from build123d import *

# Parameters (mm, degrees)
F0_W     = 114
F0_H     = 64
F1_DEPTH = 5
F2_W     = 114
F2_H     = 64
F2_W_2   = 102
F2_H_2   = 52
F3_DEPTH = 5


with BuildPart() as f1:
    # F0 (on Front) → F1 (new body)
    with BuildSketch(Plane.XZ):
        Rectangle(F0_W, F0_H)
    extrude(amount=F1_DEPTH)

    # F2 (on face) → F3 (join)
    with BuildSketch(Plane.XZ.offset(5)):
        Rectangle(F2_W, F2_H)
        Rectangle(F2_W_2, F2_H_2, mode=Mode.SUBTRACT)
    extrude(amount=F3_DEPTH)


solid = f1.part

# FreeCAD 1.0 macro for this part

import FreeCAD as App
import Part
import Sketcher

V = App.Vector
Q = App.Units.Quantity

doc = App.newDocument("Part")
body = doc.addObject("PartDesign::Body", "Body")

# Sketch on XZ plane
sketch1 = body.newObject("Sketcher::SketchObject", "Sketch")
sketch1.AttachmentSupport = (doc.getObject("XZ_Plane"), [""])
sketch1.MapMode = "FlatFace"
sketch1.addGeometry([
    Part.LineSegment(V(-57, 32, 0), V(-57, -32, 0)),
    Part.LineSegment(V(-57, -32, 0), V(57, -32, 0)),
    Part.LineSegment(V(57, -32, 0), V(57, 32, 0)),
    Part.LineSegment(V(57, 32, 0), V(-57, 32, 0)),
], False)
sketch1.addConstraint([
    Sketcher.Constraint("Coincident", 0, 2, 1, 1),
    Sketcher.Constraint("Coincident", 1, 2, 2, 1),
    Sketcher.Constraint("Coincident", 2, 2, 3, 1),
    Sketcher.Constraint("Coincident", 3, 2, 0, 1),
    Sketcher.Constraint("Vertical", 0),
    Sketcher.Constraint("Horizontal", 1),
    Sketcher.Constraint("Vertical", 2),
    Sketcher.Constraint("Horizontal", 3),
    Sketcher.Constraint("Symmetric", 0, 2, 2, 2, -1, 1),
    Sketcher.Constraint("DistanceX", 1, 1, 1, 2, Q("114 mm")),
    Sketcher.Constraint("DistanceY", 0, 2, 0, 1, Q("64 mm")),
])
pad1 = body.newObject("PartDesign::Pad", "Pad")
pad1.Profile = sketch1
pad1.Length = 5

# Sketch on XZ plane
sketch2 = body.newObject("Sketcher::SketchObject", "Sketch001")
sketch2.AttachmentSupport = (doc.getObject("XZ_Plane"), [""])
sketch2.MapMode = "FlatFace"
sketch2.AttachmentOffset = App.Placement(V(0, 0, 5), App.Rotation())
sketch2.addGeometry([
    Part.LineSegment(V(-57, 32, 0), V(-57, -32, 0)),  # 0
    Part.LineSegment(V(-57, -32, 0), V(57, -32, 0)),  # 1
    Part.LineSegment(V(57, -32, 0), V(57, 32, 0)),  # 2
    Part.LineSegment(V(57, 32, 0), V(-57, 32, 0)),  # 3
    Part.LineSegment(V(51, -26, 0), V(-51, -26, 0)),  # 4
    Part.LineSegment(V(-51, -26, 0), V(-51, 26, 0)),  # 5
    Part.LineSegment(V(-51, 26, 0), V(51, 26, 0)),  # 6
    Part.LineSegment(V(51, 26, 0), V(51, -26, 0)),  # 7
], False)
sketch2.addConstraint([
    Sketcher.Constraint("Coincident", 0, 2, 1, 1),
    Sketcher.Constraint("Coincident", 1, 2, 2, 1),
    Sketcher.Constraint("Coincident", 2, 2, 3, 1),
    Sketcher.Constraint("Coincident", 3, 2, 0, 1),
    Sketcher.Constraint("Coincident", 4, 2, 5, 1),
    Sketcher.Constraint("Coincident", 5, 2, 6, 1),
    Sketcher.Constraint("Coincident", 6, 2, 7, 1),
    Sketcher.Constraint("Coincident", 7, 2, 4, 1),
    Sketcher.Constraint("Vertical", 0),
    Sketcher.Constraint("Horizontal", 1),
    Sketcher.Constraint("Vertical", 2),
    Sketcher.Constraint("Horizontal", 3),
    Sketcher.Constraint("Horizontal", 4),
    Sketcher.Constraint("Vertical", 5),
    Sketcher.Constraint("Horizontal", 6),
    Sketcher.Constraint("Vertical", 7),
    Sketcher.Constraint("Symmetric", 0, 2, 2, 2, -1, 1),
    Sketcher.Constraint("Symmetric", 4, 2, 6, 2, -1, 1),
    Sketcher.Constraint("DistanceX", 1, 1, 1, 2, Q("114 mm")),
    Sketcher.Constraint("DistanceX", 4, 2, 4, 1, Q("102 mm")),
    Sketcher.Constraint("DistanceY", 0, 2, 0, 1, Q("64 mm")),
    Sketcher.Constraint("DistanceY", 5, 1, 5, 2, Q("52 mm")),
])
pad2 = body.newObject("PartDesign::Pad", "Pad001")
pad2.Profile = sketch2
pad2.Length = 5

doc.recompute()
